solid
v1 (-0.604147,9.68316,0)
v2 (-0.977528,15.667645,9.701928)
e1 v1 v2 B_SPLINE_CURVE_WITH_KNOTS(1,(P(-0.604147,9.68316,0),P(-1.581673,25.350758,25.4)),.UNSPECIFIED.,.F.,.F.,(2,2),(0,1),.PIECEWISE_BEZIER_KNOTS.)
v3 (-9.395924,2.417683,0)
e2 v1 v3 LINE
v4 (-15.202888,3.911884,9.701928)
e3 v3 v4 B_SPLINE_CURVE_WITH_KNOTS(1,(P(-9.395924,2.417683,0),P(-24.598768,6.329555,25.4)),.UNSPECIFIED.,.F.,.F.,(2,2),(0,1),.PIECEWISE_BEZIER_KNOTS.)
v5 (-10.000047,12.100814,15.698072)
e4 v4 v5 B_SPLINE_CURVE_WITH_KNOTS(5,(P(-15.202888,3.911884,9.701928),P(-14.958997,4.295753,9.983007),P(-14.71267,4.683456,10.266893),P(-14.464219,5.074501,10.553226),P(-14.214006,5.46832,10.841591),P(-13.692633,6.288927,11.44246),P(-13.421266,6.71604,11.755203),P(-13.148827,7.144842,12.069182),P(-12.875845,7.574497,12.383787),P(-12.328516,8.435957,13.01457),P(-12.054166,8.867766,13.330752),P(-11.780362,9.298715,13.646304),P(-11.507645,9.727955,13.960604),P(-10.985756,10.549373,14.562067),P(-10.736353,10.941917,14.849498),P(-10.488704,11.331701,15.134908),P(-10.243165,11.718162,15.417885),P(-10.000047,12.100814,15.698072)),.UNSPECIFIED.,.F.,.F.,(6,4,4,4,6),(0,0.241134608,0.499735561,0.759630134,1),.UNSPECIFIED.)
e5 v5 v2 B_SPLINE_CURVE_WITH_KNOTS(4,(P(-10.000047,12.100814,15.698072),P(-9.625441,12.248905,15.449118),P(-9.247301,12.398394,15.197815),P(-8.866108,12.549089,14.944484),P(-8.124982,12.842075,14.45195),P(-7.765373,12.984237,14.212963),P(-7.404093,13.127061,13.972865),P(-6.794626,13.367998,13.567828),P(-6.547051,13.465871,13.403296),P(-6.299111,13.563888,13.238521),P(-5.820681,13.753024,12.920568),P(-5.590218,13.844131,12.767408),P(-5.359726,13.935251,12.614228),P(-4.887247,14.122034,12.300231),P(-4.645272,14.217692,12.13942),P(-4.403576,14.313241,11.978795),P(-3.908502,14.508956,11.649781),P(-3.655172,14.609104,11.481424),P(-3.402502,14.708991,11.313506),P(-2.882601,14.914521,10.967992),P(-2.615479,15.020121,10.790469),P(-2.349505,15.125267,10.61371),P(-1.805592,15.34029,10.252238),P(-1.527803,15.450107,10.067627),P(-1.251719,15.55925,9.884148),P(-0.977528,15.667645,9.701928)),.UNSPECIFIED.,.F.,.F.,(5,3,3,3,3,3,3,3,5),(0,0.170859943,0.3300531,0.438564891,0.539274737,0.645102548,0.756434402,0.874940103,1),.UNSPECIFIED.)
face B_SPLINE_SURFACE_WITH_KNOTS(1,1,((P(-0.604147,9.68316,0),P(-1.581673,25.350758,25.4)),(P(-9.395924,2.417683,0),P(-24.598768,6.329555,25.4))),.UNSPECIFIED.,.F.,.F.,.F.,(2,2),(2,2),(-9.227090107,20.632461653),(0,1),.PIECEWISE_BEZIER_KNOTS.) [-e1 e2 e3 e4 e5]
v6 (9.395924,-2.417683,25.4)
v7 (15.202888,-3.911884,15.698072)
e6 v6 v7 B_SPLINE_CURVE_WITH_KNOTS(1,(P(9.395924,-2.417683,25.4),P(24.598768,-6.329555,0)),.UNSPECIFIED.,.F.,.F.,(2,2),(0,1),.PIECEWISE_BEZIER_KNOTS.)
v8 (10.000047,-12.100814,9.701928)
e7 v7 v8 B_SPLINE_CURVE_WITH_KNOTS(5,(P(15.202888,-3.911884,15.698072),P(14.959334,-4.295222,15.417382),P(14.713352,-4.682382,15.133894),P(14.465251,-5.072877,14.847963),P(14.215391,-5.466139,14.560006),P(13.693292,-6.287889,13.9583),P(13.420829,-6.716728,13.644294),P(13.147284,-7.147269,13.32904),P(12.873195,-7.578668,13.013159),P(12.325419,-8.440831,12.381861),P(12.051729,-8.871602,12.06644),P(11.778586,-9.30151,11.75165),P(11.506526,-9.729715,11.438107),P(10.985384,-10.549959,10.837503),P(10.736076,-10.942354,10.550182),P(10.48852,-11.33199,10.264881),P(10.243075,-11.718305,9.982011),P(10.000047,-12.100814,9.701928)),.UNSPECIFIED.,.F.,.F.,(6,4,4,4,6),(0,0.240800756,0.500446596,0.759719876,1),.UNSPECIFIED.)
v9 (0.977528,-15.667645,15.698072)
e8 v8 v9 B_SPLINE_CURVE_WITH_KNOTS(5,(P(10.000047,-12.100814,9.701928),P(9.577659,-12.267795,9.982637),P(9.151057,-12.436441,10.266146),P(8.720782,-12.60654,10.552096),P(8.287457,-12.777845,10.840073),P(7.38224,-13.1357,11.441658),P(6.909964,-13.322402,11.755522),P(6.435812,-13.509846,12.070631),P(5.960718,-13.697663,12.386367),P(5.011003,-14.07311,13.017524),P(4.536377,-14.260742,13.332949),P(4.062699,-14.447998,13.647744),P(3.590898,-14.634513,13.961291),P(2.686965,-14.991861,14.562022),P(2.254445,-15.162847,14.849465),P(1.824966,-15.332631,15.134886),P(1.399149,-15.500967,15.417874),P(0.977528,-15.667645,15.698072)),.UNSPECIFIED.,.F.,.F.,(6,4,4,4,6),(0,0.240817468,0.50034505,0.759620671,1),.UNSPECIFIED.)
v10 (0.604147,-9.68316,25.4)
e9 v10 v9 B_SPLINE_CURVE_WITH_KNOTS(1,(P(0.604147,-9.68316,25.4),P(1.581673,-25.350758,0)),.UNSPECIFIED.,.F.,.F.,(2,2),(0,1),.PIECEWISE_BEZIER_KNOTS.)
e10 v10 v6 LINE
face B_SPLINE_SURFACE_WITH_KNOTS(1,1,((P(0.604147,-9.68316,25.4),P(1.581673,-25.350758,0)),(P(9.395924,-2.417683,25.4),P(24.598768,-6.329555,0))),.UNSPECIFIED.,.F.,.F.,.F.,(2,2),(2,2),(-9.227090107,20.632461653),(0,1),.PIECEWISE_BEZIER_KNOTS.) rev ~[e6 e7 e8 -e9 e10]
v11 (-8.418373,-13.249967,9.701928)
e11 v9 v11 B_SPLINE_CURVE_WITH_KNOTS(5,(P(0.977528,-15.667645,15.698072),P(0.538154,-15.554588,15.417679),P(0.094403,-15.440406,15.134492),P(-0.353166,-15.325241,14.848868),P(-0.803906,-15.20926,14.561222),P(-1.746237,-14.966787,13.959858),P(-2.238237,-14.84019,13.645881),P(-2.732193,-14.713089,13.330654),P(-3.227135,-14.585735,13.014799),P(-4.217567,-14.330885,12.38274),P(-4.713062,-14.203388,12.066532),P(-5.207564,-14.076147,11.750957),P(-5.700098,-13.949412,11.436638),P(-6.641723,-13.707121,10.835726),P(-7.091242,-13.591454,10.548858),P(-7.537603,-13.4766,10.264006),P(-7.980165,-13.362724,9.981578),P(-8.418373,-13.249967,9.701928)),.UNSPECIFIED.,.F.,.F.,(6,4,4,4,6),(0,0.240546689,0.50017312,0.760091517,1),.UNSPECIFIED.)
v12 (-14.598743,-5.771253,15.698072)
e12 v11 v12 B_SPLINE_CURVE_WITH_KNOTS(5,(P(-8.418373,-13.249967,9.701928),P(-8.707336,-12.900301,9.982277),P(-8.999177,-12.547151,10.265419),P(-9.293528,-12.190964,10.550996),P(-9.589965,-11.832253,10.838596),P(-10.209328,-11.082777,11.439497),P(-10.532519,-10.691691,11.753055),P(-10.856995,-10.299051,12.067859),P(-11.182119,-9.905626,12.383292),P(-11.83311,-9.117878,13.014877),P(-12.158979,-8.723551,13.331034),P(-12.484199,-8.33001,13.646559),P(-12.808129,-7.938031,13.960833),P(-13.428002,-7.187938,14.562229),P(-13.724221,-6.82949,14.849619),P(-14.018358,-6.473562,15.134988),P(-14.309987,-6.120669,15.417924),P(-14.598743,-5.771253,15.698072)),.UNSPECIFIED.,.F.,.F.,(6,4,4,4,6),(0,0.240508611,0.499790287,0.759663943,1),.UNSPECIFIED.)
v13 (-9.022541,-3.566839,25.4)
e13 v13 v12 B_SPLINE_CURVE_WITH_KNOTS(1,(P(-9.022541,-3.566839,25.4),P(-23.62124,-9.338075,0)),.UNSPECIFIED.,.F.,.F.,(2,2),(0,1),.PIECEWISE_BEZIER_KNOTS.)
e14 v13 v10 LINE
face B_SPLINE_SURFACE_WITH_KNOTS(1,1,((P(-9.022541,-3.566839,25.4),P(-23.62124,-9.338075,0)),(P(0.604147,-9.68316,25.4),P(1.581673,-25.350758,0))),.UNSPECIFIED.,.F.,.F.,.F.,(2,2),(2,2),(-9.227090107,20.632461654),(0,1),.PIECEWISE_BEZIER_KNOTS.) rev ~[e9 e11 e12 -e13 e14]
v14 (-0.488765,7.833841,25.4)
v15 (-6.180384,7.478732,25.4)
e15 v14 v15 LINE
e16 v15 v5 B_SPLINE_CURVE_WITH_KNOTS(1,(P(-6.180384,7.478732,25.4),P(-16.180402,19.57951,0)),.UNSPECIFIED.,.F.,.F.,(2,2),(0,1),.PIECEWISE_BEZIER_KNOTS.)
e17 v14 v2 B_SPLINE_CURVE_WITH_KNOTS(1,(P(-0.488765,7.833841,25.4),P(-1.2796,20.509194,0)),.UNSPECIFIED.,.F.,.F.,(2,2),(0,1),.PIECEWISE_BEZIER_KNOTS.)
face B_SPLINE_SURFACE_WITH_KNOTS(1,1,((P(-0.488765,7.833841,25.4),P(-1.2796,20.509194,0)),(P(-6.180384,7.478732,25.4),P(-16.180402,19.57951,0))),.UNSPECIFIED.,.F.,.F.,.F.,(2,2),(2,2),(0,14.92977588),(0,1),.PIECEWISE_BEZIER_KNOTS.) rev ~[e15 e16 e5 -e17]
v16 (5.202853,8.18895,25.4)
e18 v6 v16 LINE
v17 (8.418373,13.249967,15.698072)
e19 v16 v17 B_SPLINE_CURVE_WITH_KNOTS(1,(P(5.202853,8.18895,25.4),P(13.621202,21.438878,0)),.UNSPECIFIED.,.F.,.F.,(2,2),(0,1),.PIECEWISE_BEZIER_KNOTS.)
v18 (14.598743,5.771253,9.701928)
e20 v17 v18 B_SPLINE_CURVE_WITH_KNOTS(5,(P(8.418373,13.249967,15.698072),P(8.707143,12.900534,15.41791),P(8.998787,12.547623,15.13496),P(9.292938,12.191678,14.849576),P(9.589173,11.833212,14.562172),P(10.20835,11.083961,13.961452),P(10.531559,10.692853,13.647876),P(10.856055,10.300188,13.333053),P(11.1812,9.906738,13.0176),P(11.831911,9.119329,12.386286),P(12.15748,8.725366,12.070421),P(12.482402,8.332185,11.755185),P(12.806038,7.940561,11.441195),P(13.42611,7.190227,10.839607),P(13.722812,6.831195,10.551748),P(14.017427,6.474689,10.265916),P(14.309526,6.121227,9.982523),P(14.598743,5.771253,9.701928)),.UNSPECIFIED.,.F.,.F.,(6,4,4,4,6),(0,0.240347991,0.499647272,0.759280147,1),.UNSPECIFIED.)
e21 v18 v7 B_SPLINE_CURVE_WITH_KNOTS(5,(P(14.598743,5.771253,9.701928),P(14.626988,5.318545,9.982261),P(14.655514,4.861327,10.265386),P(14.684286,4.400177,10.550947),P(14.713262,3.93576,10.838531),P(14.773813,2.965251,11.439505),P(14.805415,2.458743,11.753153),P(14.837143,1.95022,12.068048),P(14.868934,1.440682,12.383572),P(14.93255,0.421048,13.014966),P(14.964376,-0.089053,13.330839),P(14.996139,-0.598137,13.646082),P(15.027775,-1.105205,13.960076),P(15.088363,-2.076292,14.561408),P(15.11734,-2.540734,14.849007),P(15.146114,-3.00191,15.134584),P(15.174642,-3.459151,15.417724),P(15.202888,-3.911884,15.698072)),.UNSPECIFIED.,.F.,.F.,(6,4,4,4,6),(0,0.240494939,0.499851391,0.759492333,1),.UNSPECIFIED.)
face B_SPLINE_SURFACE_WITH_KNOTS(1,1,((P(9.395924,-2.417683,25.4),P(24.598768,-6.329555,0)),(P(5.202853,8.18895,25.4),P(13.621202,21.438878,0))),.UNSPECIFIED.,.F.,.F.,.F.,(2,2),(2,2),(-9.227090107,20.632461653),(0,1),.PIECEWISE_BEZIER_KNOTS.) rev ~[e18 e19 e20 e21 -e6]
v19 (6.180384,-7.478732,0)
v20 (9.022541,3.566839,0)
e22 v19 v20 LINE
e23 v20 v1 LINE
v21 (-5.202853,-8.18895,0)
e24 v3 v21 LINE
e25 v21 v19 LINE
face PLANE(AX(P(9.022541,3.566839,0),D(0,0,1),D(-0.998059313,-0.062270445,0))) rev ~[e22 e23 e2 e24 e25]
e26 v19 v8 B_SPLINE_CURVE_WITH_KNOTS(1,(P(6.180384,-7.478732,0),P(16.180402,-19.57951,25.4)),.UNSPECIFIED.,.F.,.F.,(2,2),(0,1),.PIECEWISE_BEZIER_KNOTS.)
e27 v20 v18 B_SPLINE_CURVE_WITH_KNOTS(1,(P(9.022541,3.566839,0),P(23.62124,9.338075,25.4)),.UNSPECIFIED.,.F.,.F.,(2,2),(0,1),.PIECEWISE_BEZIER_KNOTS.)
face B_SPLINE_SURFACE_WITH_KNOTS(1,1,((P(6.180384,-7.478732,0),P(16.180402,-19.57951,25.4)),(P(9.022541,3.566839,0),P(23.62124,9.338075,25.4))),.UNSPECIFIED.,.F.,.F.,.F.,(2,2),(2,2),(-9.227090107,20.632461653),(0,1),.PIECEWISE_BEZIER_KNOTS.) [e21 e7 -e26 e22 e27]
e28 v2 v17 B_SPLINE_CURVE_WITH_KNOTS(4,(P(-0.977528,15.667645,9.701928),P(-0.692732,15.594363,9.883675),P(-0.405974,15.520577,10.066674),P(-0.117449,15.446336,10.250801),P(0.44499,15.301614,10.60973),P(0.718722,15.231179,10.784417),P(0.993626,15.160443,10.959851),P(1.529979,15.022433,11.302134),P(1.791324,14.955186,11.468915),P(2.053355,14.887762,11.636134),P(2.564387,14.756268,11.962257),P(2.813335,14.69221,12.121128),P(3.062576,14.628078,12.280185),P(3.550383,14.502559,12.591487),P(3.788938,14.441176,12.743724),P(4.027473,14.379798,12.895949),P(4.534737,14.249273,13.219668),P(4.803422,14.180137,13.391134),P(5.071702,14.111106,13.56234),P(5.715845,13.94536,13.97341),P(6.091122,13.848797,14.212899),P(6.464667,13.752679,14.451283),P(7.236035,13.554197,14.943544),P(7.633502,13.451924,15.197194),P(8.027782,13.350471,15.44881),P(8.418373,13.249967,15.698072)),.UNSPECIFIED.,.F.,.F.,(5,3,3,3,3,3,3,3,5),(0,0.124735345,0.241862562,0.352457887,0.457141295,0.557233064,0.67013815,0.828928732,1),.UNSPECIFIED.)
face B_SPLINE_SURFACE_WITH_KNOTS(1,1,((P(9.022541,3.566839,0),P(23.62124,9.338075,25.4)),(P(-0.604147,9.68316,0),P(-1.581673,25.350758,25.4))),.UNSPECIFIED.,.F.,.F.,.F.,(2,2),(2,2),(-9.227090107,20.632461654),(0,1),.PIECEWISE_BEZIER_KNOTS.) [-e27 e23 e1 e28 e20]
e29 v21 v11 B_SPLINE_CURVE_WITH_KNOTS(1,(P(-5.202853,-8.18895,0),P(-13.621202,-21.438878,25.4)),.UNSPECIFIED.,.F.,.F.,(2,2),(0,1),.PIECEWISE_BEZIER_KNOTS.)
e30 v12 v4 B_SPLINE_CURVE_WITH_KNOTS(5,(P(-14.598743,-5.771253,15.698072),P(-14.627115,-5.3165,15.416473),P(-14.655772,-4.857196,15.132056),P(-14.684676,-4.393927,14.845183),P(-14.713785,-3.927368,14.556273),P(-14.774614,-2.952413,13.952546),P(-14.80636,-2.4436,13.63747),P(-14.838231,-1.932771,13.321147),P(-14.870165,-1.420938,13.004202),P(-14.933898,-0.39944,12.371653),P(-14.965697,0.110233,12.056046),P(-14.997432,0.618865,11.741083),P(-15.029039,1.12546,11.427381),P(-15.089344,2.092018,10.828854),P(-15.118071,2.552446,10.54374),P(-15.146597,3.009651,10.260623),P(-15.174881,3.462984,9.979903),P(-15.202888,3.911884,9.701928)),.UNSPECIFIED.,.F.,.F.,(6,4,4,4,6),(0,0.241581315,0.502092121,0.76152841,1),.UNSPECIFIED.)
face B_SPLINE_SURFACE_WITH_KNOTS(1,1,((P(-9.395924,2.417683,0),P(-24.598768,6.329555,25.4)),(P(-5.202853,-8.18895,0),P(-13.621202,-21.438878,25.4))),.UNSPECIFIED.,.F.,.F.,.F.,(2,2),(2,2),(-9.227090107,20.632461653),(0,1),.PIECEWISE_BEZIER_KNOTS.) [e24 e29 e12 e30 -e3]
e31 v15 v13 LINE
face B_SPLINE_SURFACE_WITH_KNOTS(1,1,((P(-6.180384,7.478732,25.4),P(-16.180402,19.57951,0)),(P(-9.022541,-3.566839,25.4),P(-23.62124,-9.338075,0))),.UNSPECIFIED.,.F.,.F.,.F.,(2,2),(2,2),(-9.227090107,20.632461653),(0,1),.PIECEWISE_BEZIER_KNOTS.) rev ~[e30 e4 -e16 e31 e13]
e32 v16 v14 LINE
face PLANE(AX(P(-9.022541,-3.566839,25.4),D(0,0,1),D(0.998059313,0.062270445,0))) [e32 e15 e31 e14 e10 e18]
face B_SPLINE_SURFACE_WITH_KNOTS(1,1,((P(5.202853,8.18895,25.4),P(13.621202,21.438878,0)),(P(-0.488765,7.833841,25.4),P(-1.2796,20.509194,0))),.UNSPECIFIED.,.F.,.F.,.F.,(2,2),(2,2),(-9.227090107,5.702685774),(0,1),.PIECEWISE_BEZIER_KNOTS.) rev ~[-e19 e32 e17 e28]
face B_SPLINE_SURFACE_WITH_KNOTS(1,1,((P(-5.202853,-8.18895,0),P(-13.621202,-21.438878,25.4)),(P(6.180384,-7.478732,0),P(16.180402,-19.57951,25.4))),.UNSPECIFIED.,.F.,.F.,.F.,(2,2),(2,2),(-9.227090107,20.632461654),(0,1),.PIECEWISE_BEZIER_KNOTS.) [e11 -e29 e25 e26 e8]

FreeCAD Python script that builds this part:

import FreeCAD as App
import Part
import Sketcher
Q = App.Units.Quantity


def add_polygon(sketch, points):
    """Adds a closed chain of lines whose ends are joined by coincident constraints."""
    first, n = sketch.GeometryCount, len(points)
    for a, b in zip(points, points[1:] + points[:1]):
        sketch.addGeometry(Part.LineSegment(App.Vector(*a, 0), App.Vector(*b, 0)), False)
    for i in range(n):
        sketch.addConstraint(Sketcher.Constraint("Coincident", first + i, 2, first + (i + 1) % n, 1))

doc = App.newDocument("Part")
body = doc.addObject("PartDesign::Body", "Body")

sketch1 = doc.addObject("Sketcher::SketchObject", "Sketch")
body.addObject(sketch1)
sketch1.AttachmentSupport = (doc.XY_Plane, [""])
sketch1.MapMode = "FlatFace"
add_polygon(sketch1, [(9, 4), (-1, 10), (-9, 2), (-5, -8), (6, -7)])
sketch1.addConstraint([
    Sketcher.Constraint("Equal", 0, 1),
    Sketcher.Constraint("Equal", 1, 2),
    Sketcher.Constraint("Equal", 2, 3),
    Sketcher.Constraint("Equal", 3, 4),
    Sketcher.Constraint("DistanceY", 4, 2, 0, 2, Q("0.2408 in")),
    Sketcher.Constraint("Distance", 0, Q("11.405372 mm")),
    Sketcher.Constraint("DistanceY", -1, 1, 0, 2, Q("9.68316 mm")),
    Sketcher.Constraint("DistanceY", 2, 2, -1, 1, Q("8.18895 mm")),
    Sketcher.Constraint("DistanceX", -1, 1, 4, 2, Q("9.022541 mm")),
    Sketcher.Constraint("DistanceX", 1, 2, 2, 2, Q("4.193071 mm")),
])
pad1 = doc.addObject("PartDesign::Pad", "Pad")
body.addObject(pad1)
pad1.Profile = sketch1
pad1.Length = Q("1 in")
pad1.TaperAngle = 26.565051
body2 = doc.addObject("PartDesign::Body", "Body001")

sketch2 = doc.addObject("Sketcher::SketchObject", "Sketch001")
body2.addObject(sketch2)
sketch2.AttachmentSupport = (doc.getObject("XY_Plane001"), [""])
sketch2.MapMode = "FlatFace"
sketch2.AttachmentOffset = App.Placement(App.Vector(0, 0, 1 * 25.4), App.Rotation())
add_polygon(sketch2, [(-9, -4), (1, -10), (9, -2), (5, 8), (0, 8), (-6, 7)])
sketch2.addConstraint([
    Sketcher.Constraint("Parallel", 3, 4),
    Sketcher.Constraint("Equal", 0, 1),
    Sketcher.Constraint("Equal", 1, 2),
    Sketcher.Constraint("Equal", 3, 4),
    Sketcher.Constraint("Equal", 2, 5),
    Sketcher.Constraint("DistanceY", 0, 2, 5, 2, Q("0.2408 in")),
    Sketcher.Constraint("DistanceY", 0, 2, 3, 2, Q("17.517001 mm")),
    Sketcher.Constraint("Distance", 0, Q("11.405372 mm")),
    Sketcher.Constraint("DistanceY", 0, 2, -1, 1, Q("9.68316 mm")),
    Sketcher.Constraint("DistanceY", -1, 1, 2, 2, Q("8.18895 mm")),
    Sketcher.Constraint("DistanceX", 5, 2, -1, 1, Q("9.022541 mm")),
    Sketcher.Constraint("DistanceX", 2, 2, 1, 2, Q("4.193071 mm")),
])
pad2 = doc.addObject("PartDesign::Pad", "Pad001")
body2.addObject(pad2)
pad2.Profile = sketch2
pad2.Length = Q("1 in")
pad2.Reversed = True
pad2.TaperAngle = 26.565051
doc.recompute()

boolean = doc.addObject("PartDesign::Boolean", "Boolean")
body.addObject(boolean)
boolean.Type = "Common"
boolean.addObjects([body2])

doc.recompute()
